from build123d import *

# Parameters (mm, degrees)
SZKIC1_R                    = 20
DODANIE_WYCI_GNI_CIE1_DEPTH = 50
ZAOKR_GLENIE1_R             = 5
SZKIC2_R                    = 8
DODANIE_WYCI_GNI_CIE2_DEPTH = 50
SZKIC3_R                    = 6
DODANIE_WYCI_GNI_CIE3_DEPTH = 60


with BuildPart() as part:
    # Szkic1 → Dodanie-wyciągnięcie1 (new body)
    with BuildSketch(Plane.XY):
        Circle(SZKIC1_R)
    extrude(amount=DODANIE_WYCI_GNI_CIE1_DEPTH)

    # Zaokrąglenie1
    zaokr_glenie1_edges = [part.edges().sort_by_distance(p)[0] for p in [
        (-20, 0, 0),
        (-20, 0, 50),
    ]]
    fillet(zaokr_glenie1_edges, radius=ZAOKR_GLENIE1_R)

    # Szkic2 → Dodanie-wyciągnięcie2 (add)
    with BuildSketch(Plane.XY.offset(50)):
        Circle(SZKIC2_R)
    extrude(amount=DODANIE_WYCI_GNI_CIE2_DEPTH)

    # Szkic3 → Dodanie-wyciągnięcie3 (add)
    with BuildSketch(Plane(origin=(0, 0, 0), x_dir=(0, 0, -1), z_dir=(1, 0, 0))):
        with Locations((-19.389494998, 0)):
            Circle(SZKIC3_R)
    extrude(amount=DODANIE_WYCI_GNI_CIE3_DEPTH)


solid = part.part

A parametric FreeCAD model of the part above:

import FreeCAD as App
import Part
import Sketcher

V = App.Vector
Q = App.Units.Quantity


def edges_at(feature, points):
    """Names of the edges that pass closest to the given points."""
    edges = feature.Shape.Edges
    near = lambda p: min(range(len(edges)), key=lambda i: edges[i].distToShape(Part.Vertex(*p))[0])
    return sorted({f"Edge{near(p) + 1}" for p in points})

doc = App.newDocument("Part")
body = doc.addObject("PartDesign::Body", "Body")

# Sketch on XY plane
sketch1 = body.newObject("Sketcher::SketchObject", "Sketch")
sketch1.AttachmentSupport = (doc.getObject("XY_Plane"), [""])
sketch1.MapMode = "FlatFace"
sketch1.addGeometry(Part.Circle(V(0, 0, 0), V(0, 0, 1), 20), False)
sketch1.addConstraint([
    Sketcher.Constraint("Coincident", 0, 3, -1, 1),
    Sketcher.Constraint("Diameter", 0, Q("40 mm")),
])
pad1 = body.newObject("PartDesign::Pad", "Pad")
pad1.Profile = sketch1
pad1.Length = 50
doc.recompute()

fillet = body.newObject("PartDesign::Fillet", "Fillet")
fillet.Base = (pad1, edges_at(pad1, [(-20, 0, 0), (-20, 0, 50)]))
fillet.Radius = 5

# Sketch on XY plane
sketch2 = body.newObject("Sketcher::SketchObject", "Sketch001")
sketch2.AttachmentSupport = (doc.getObject("XY_Plane"), [""])
sketch2.MapMode = "FlatFace"
sketch2.AttachmentOffset = App.Placement(V(0, 0, 50), App.Rotation())
sketch2.addGeometry(Part.Circle(V(0, 0, 0), V(0, 0, 1), 8), False)
sketch2.addConstraint([
    Sketcher.Constraint("Coincident", 0, 3, -1, 1),
    Sketcher.Constraint("Diameter", 0, Q("16 mm")),
])
pad2 = body.newObject("PartDesign::Pad", "Pad001")
pad2.Profile = sketch2
pad2.Length = 50

# Sketch on YZ plane
sketch3 = body.newObject("Sketcher::SketchObject", "Sketch002")
sketch3.AttachmentSupport = (doc.getObject("YZ_Plane"), [""])
sketch3.MapMode = "FlatFace"
sketch3.addGeometry(Part.Circle(V(0, 19.389495, 0), V(0, 0, 1), 6), False)
sketch3.addConstraint([
    Sketcher.Constraint("PointOnObject", 0, 3, -2),
    Sketcher.Constraint("Diameter", 0, Q("12 mm")),
    Sketcher.Constraint("DistanceY", -1, 1, 0, 3, Q("19.389495 mm")),
])
pad3 = body.newObject("PartDesign::Pad", "Pad002")
pad3.Profile = sketch3
pad3.Length = 60

doc.recompute()
